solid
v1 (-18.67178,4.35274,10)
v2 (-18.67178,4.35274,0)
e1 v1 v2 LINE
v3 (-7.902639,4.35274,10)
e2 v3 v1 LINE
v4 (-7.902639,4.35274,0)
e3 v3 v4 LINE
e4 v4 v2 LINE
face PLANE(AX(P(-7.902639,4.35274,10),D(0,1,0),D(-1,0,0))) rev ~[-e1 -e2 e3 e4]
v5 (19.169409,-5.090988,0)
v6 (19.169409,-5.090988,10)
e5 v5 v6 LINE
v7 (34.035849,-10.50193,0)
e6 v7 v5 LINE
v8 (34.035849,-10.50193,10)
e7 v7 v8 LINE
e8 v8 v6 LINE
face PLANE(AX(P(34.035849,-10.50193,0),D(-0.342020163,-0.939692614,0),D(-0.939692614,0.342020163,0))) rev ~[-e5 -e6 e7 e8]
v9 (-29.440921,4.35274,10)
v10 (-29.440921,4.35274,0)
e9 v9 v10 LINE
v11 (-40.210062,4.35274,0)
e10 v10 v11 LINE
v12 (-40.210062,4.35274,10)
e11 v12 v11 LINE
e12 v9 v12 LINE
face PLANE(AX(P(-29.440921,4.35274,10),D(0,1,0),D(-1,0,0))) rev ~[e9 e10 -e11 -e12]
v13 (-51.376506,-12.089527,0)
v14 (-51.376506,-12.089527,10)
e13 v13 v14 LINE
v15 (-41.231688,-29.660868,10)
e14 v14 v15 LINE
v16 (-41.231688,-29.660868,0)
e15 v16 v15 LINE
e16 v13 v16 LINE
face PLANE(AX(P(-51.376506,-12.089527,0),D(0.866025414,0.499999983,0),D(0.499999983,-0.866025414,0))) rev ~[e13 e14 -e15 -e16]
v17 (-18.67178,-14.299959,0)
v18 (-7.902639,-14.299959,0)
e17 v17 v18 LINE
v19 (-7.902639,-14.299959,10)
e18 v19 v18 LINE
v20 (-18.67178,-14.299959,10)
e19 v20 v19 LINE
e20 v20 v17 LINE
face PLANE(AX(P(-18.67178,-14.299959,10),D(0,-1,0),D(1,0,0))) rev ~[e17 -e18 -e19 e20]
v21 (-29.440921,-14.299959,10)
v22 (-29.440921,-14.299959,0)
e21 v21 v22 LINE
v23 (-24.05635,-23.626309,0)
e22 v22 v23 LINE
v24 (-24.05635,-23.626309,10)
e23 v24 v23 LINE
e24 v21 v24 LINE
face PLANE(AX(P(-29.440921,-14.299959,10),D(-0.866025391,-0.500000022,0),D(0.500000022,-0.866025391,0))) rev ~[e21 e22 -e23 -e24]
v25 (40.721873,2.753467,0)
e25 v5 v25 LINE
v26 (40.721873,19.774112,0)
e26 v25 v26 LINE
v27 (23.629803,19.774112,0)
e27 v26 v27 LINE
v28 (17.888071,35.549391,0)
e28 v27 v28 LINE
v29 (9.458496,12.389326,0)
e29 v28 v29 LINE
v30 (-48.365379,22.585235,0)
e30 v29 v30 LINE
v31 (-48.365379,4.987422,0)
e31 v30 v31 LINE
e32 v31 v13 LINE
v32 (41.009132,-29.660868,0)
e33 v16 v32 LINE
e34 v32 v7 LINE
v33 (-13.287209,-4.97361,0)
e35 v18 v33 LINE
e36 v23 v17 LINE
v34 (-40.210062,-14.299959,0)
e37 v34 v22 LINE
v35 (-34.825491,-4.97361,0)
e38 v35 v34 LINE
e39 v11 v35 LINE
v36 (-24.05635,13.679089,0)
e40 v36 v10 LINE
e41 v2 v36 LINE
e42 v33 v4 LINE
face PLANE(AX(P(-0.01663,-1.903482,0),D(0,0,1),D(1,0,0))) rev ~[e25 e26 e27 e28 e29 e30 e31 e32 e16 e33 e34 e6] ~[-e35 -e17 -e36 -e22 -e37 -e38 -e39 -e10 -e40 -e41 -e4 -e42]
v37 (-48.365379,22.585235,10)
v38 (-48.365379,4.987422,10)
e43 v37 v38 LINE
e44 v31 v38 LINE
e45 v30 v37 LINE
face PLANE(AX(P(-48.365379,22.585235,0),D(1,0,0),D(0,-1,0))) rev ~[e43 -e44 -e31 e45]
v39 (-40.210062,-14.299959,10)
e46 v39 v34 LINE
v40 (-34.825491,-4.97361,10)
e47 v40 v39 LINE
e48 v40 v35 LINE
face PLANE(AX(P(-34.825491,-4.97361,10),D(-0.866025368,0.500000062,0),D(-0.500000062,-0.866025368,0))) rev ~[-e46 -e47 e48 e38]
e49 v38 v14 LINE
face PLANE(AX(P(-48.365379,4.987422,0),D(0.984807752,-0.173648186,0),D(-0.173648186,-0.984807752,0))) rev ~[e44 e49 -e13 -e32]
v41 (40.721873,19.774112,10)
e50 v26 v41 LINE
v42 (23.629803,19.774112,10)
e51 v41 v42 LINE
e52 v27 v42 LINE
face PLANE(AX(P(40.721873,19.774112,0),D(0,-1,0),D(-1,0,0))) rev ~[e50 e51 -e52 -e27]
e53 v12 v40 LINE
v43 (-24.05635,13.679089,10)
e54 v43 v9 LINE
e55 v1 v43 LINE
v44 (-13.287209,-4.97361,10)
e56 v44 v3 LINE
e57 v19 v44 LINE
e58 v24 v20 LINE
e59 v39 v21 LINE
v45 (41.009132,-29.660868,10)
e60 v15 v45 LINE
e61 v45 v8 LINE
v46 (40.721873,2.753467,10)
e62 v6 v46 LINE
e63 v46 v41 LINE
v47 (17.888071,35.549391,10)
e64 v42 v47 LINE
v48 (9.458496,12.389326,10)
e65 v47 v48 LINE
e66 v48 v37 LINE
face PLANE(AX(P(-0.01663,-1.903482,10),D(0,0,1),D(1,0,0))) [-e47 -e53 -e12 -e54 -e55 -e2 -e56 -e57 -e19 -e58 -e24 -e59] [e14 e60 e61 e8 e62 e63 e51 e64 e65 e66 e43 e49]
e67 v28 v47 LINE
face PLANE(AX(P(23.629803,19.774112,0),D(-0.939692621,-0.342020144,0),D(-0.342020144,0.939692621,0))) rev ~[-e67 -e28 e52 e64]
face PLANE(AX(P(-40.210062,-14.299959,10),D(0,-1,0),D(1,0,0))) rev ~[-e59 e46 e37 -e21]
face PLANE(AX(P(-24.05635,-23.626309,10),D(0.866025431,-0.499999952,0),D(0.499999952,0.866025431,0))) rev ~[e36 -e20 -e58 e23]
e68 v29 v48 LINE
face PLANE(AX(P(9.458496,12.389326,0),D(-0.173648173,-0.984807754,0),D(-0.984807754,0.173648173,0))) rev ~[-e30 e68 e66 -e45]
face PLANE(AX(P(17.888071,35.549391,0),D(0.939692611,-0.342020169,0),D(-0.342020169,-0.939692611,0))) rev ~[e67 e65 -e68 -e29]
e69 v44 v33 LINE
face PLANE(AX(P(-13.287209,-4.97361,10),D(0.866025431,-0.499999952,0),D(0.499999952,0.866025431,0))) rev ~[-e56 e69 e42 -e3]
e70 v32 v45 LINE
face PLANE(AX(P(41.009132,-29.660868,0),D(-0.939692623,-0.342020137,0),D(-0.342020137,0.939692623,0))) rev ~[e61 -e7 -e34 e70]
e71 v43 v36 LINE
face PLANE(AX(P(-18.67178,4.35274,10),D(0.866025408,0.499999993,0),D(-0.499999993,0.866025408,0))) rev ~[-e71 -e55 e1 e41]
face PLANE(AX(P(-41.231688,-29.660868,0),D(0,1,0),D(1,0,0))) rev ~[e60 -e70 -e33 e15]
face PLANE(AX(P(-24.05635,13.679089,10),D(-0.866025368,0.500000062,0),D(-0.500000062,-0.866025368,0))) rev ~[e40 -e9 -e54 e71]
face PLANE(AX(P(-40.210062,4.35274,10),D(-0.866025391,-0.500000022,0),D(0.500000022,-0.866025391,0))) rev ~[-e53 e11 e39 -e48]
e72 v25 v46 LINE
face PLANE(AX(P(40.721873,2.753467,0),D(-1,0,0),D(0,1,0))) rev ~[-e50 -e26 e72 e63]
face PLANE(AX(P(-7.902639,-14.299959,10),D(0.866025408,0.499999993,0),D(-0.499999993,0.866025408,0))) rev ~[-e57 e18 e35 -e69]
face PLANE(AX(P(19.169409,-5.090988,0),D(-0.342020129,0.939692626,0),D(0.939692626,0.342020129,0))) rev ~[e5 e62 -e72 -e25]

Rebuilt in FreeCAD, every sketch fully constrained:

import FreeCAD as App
import Part
import Sketcher

V = App.Vector
Q = App.Units.Quantity


def add_polygon(sketch, points):
    """Adds a closed chain of lines whose ends are joined by coincident constraints."""
    first, n = sketch.GeometryCount, len(points)
    for a, b in zip(points, points[1:] + points[:1]):
        sketch.addGeometry(Part.LineSegment(App.Vector(*a, 0), App.Vector(*b, 0)), False)
    for i in range(n):
        sketch.addConstraint(Sketcher.Constraint("Coincident", first + i, 2, first + (i + 1) % n, 1))

doc = App.newDocument("Part")
body = doc.addObject("PartDesign::Body", "Body")

# Sketch on XY plane
sketch1 = body.newObject("Sketcher::SketchObject", "Sketch")
sketch1.AttachmentSupport = (doc.getObject("XY_Plane"), [""])
sketch1.MapMode = "FlatFace"
add_polygon(sketch1, [(-41, -30), (41, -30), (34, -11), (19, -5), (41, 3), (41, 20), (24, 20), (18, 36), (9, 12), (-48, 23), (-48, 5), (-51, -12)])  # lines 0-11
sketch1.addConstraint(Sketcher.Constraint("Horizontal", 0))
sketch1.addConstraint(Sketcher.Constraint("Vertical", 4))
sketch1.addConstraint(Sketcher.Constraint("Horizontal", 5))
sketch1.addConstraint(Sketcher.Constraint("Vertical", 9))
sketch1.addConstraint(Sketcher.Constraint("Perpendicular", 1, 3))
sketch1.addConstraint(Sketcher.Constraint("Perpendicular", 3, 6))
sketch1.addConstraint(Sketcher.Constraint("Perpendicular", 2, 7))
sketch1.addConstraint(Sketcher.Constraint("Perpendicular", 8, 10))
sketch1.addConstraint(Sketcher.Constraint("Angle", 1, Q("110 deg")))
sketch1.addConstraint(Sketcher.Constraint("Angle", 2, Q("159.999999 deg")))
sketch1.addConstraint(Sketcher.Constraint("Angle", 8, Q("170 deg")))
sketch1.addConstraint(Sketcher.Constraint("Angle", 11, Q("-60.000001 deg")))
sketch1.addConstraint(Sketcher.Constraint("Distance", 6, 16.787701))
sketch1.addConstraint(Sketcher.Constraint("Distance", 8, 58.715901))
sketch1.addConstraint(Sketcher.Constraint("DistanceX", 0, 1, 0, 2, 82.24082))
sketch1.addConstraint(Sketcher.Constraint("DistanceX", 5, 2, 5, 1, 17.09207))
sketch1.addConstraint(Sketcher.Constraint("DistanceY", 2, 2, 4, 2, 24.8651))
sketch1.addConstraint(Sketcher.Constraint("Distance", 10, 17.340388))
sketch1.addConstraint(Sketcher.Constraint("DistanceY", 4, 1, 4, 2, 17.020645))
sketch1.addConstraint(Sketcher.Constraint("DistanceY", 9, 2, 9, 1, 17.597813))
sketch1.addConstraint(Sketcher.Constraint("DistanceY", 0, 2, -1, 1, 29.660868))
sketch1.addConstraint(Sketcher.Constraint("DistanceX", -1, 1, 1, 2, 34.035849))
sketch1.addConstraint(Sketcher.Constraint("DistanceY", 1, 2, -1, 1, 10.50193))
sketch1.addConstraint(Sketcher.Constraint("DistanceX", -1, 1, 2, 2, 19.169409))
pad1 = body.newObject("PartDesign::Pad", "Pad")
pad1.Profile = sketch1
pad1.Length = 10

# Sketch on XY plane
sketch2 = body.newObject("Sketcher::SketchObject", "Sketch001")
sketch2.AttachmentSupport = (doc.getObject("XY_Plane"), [""])
sketch2.MapMode = "FlatFace"
sketch2.AttachmentOffset = App.Placement(V(0, 0, 10), App.Rotation())
add_polygon(sketch2, [(-8, -14), (-13, -5), (-8, 4), (-19, 4), (-24, 14), (-29, 4), (-40, 4), (-35, -5), (-40, -14), (-29, -14), (-24, -24), (-19, -14)])  # lines 0-11
sketch2.addConstraint(Sketcher.Constraint("Horizontal", 2))
sketch2.addConstraint(Sketcher.Constraint("Horizontal", 5))
sketch2.addConstraint(Sketcher.Constraint("Horizontal", 8))
sketch2.addConstraint(Sketcher.Constraint("Horizontal", 11))
sketch2.addConstraint(Sketcher.Constraint("Parallel", 0, 3))
sketch2.addConstraint(Sketcher.Constraint("Parallel", 1, 4))
sketch2.addConstraint(Sketcher.Constraint("Parallel", 3, 6))
sketch2.addConstraint(Sketcher.Constraint("Parallel", 4, 7))
sketch2.addConstraint(Sketcher.Constraint("Parallel", 6, 9))
sketch2.addConstraint(Sketcher.Constraint("Parallel", 7, 10))
sketch2.addConstraint(Sketcher.Constraint("Horizontal", 2, 2, 4, 2))
sketch2.addConstraint(Sketcher.Constraint("Horizontal", 0, 2, 6, 2))
sketch2.addConstraint(Sketcher.Constraint("Horizontal", 8, 2, 10, 2))
sketch2.addConstraint(Sketcher.Constraint("Vertical", 5, 2, 7, 2))
sketch2.addConstraint(Sketcher.Constraint("Vertical", 4, 2, 8, 2))
sketch2.addConstraint(Sketcher.Constraint("Vertical", 3, 2, 9, 2))
sketch2.addConstraint(Sketcher.Constraint("Vertical", 2, 2, 10, 2))
sketch2.addConstraint(Sketcher.Constraint("Equal", 2, 5))
sketch2.addConstraint(Sketcher.Constraint("Equal", 1, 3))
sketch2.addConstraint(Sketcher.Constraint("Angle", 0, Q("120 deg")))
sketch2.addConstraint(Sketcher.Constraint("DistanceX", 2, 2, 2, 1, 10.769141))
sketch2.addConstraint(Sketcher.Constraint("DistanceY", 0, 2, 3, 2, 18.652699))
sketch2.addConstraint(Sketcher.Constraint("DistanceX", 0, 2, -1, 1, 13.287209))
sketch2.addConstraint(Sketcher.Constraint("DistanceY", 0, 2, -1, 1, 4.97361))
pocket1 = body.newObject("PartDesign::Pocket", "Pocket")
pocket1.Profile = sketch2
pocket1.Type = "ThroughAll"

doc.recompute()
